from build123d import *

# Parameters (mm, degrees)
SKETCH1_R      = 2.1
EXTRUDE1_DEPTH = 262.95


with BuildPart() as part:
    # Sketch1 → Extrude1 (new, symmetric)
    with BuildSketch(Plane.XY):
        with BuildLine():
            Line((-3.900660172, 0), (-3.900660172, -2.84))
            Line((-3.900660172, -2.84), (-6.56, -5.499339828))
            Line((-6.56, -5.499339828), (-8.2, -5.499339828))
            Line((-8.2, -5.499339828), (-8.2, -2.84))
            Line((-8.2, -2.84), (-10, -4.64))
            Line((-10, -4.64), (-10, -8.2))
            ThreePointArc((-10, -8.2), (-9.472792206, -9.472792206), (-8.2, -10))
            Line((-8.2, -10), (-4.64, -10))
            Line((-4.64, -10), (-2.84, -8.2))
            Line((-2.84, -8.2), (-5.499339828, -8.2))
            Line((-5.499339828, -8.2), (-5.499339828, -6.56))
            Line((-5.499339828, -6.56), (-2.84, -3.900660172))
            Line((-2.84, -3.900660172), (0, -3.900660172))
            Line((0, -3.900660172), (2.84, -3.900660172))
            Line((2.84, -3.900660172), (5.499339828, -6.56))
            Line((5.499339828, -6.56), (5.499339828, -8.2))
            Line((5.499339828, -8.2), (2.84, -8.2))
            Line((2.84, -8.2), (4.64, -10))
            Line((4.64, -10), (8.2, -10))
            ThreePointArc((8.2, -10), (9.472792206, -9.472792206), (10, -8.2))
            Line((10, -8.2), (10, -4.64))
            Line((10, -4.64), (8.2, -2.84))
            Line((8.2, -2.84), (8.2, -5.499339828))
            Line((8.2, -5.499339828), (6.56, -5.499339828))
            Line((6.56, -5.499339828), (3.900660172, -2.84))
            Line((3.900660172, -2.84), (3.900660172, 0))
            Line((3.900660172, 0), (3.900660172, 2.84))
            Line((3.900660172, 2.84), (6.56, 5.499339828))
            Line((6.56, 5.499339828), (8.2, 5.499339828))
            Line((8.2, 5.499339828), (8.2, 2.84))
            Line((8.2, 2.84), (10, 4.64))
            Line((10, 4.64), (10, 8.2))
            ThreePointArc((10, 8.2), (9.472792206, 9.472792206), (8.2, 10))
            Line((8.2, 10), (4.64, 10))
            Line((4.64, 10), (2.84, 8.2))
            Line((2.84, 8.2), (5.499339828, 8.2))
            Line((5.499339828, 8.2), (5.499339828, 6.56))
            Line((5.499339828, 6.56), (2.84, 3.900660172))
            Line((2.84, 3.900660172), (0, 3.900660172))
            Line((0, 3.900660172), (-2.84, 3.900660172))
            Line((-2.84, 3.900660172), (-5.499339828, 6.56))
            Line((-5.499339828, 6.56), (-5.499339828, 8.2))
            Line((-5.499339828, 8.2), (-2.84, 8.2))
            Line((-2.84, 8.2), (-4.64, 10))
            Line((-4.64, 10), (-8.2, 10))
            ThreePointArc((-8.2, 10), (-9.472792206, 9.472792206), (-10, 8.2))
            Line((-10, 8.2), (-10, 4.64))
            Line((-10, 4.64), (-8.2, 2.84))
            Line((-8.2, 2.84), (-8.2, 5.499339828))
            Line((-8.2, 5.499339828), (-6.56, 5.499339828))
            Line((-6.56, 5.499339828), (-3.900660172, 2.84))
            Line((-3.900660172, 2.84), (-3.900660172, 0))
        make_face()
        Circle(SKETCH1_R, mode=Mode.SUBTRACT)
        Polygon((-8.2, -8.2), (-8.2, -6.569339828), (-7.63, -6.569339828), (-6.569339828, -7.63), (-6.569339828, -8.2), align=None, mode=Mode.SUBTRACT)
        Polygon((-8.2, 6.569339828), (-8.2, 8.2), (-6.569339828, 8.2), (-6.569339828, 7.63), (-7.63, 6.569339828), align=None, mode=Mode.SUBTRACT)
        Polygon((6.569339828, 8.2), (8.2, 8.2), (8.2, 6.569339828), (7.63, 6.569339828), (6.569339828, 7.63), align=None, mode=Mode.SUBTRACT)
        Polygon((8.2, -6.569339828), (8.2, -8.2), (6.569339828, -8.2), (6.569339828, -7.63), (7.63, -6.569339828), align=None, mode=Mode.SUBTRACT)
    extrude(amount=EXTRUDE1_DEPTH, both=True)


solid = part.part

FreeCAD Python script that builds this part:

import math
import FreeCAD as App
import Part
import Sketcher
from FreeCAD import Vector
Q = App.Units.Quantity


def add_polygon(sketch, points):
    """Adds a closed chain of lines whose ends are joined by coincident constraints."""
    first, n = sketch.GeometryCount, len(points)
    for a, b in zip(points, points[1:] + points[:1]):
        sketch.addGeometry(Part.LineSegment(App.Vector(*a, 0), App.Vector(*b, 0)), False)
    for i in range(n):
        sketch.addConstraint(Sketcher.Constraint("Coincident", first + i, 2, first + (i + 1) % n, 1))

doc = App.newDocument("Part")
body = doc.addObject("PartDesign::Body", "Body")

sketch1 = body.newObject("Sketcher::SketchObject", "Sketch")
sketch1.AttachmentSupport = (doc.getObject("XY_Plane"), [""])
sketch1.MapMode = "FlatFace"
sketch1.addGeometry(Part.LineSegment(Vector(-3.9, -2.8, 0), Vector(-6.6, -5.5, 0)), False)
sketch1.addGeometry(Part.LineSegment(Vector(-6.6, -5.5, 0), Vector(-8.2, -5.5, 0)), False)
sketch1.addGeometry(Part.LineSegment(Vector(-8.2, -5.5, 0), Vector(-8.2, -2.8, 0)), False)
sketch1.addGeometry(Part.LineSegment(Vector(-8.2, -2.8, 0), Vector(-10, -4.6, 0)), False)
sketch1.addGeometry(Part.LineSegment(Vector(-10, -4.6, 0), Vector(-10, -8.2, 0)), False)
sketch1.addGeometry(Part.ArcOfCircle(Part.Circle(Vector(-8.2, -8.2, 0), Vector(0, 0, 1), 1.8), math.radians(180), math.radians(270)), False)
sketch1.addGeometry(Part.LineSegment(Vector(-8.2, -10, 0), Vector(-4.6, -10, 0)), False)
sketch1.addGeometry(Part.LineSegment(Vector(-4.6, -10, 0), Vector(-2.8, -8.2, 0)), False)
sketch1.addGeometry(Part.LineSegment(Vector(-2.8, -8.2, 0), Vector(-5.5, -8.2, 0)), False)
sketch1.addGeometry(Part.LineSegment(Vector(-5.5, -8.2, 0), Vector(-5.5, -6.6, 0)), False)
sketch1.addGeometry(Part.LineSegment(Vector(-5.5, -6.6, 0), Vector(-2.8, -3.9, 0)), False)
sketch1.addGeometry(Part.LineSegment(Vector(-2.8, -3.9, 0), Vector(2.8, -3.9, 0)), False)
sketch1.addGeometry(Part.LineSegment(Vector(2.8, -3.9, 0), Vector(5.5, -6.6, 0)), False)
sketch1.addGeometry(Part.LineSegment(Vector(5.5, -6.6, 0), Vector(5.5, -8.2, 0)), False)
sketch1.addGeometry(Part.LineSegment(Vector(5.5, -8.2, 0), Vector(2.8, -8.2, 0)), False)
sketch1.addGeometry(Part.LineSegment(Vector(2.8, -8.2, 0), Vector(4.6, -10, 0)), False)
sketch1.addGeometry(Part.LineSegment(Vector(4.6, -10, 0), Vector(8.2, -10, 0)), False)
sketch1.addGeometry(Part.ArcOfCircle(Part.Circle(Vector(8.2, -8.2, 0), Vector(0, 0, 1), 1.8), math.radians(-90), math.radians(0)), False)
sketch1.addGeometry(Part.LineSegment(Vector(10, -8.2, 0), Vector(10, -4.6, 0)), False)
sketch1.addGeometry(Part.LineSegment(Vector(10, -4.6, 0), Vector(8.2, -2.8, 0)), False)
sketch1.addGeometry(Part.LineSegment(Vector(8.2, -2.8, 0), Vector(8.2, -5.5, 0)), False)
sketch1.addGeometry(Part.LineSegment(Vector(8.2, -5.5, 0), Vector(6.6, -5.5, 0)), False)
sketch1.addGeometry(Part.LineSegment(Vector(6.6, -5.5, 0), Vector(3.9, -2.8, 0)), False)
sketch1.addGeometry(Part.LineSegment(Vector(3.9, -2.8, 0), Vector(3.9, 2.8, 0)), False)
sketch1.addGeometry(Part.LineSegment(Vector(3.9, 2.8, 0), Vector(6.6, 5.5, 0)), False)
sketch1.addGeometry(Part.LineSegment(Vector(6.6, 5.5, 0), Vector(8.2, 5.5, 0)), False)
sketch1.addGeometry(Part.LineSegment(Vector(8.2, 5.5, 0), Vector(8.2, 2.8, 0)), False)
sketch1.addGeometry(Part.LineSegment(Vector(8.2, 2.8, 0), Vector(10, 4.6, 0)), False)
sketch1.addGeometry(Part.LineSegment(Vector(10, 4.6, 0), Vector(10, 8.2, 0)), False)
sketch1.addGeometry(Part.ArcOfCircle(Part.Circle(Vector(8.2, 8.2, 0), Vector(0, 0, 1), 1.8), math.radians(0), math.radians(90)), False)
sketch1.addGeometry(Part.LineSegment(Vector(8.2, 10, 0), Vector(4.6, 10, 0)), False)
sketch1.addGeometry(Part.LineSegment(Vector(4.6, 10, 0), Vector(2.8, 8.2, 0)), False)
sketch1.addGeometry(Part.LineSegment(Vector(2.8, 8.2, 0), Vector(5.5, 8.2, 0)), False)
sketch1.addGeometry(Part.LineSegment(Vector(5.5, 8.2, 0), Vector(5.5, 6.6, 0)), False)
sketch1.addGeometry(Part.LineSegment(Vector(5.5, 6.6, 0), Vector(2.8, 3.9, 0)), False)
sketch1.addGeometry(Part.LineSegment(Vector(2.8, 3.9, 0), Vector(-2.8, 3.9, 0)), False)
sketch1.addGeometry(Part.LineSegment(Vector(-2.8, 3.9, 0), Vector(-5.5, 6.6, 0)), False)
sketch1.addGeometry(Part.LineSegment(Vector(-5.5, 6.6, 0), Vector(-5.5, 8.2, 0)), False)
sketch1.addGeometry(Part.LineSegment(Vector(-5.5, 8.2, 0), Vector(-2.8, 8.2, 0)), False)
sketch1.addGeometry(Part.LineSegment(Vector(-2.8, 8.2, 0), Vector(-4.6, 10, 0)), False)
sketch1.addGeometry(Part.LineSegment(Vector(-4.6, 10, 0), Vector(-8.2, 10, 0)), False)
sketch1.addGeometry(Part.ArcOfCircle(Part.Circle(Vector(-8.2, 8.2, 0), Vector(0, 0, 1), 1.8), math.radians(90), math.radians(180)), False)
sketch1.addGeometry(Part.LineSegment(Vector(-10, 8.2, 0), Vector(-10, 4.6, 0)), False)
sketch1.addGeometry(Part.LineSegment(Vector(-10, 4.6, 0), Vector(-8.2, 2.8, 0)), False)
sketch1.addGeometry(Part.LineSegment(Vector(-8.2, 2.8, 0), Vector(-8.2, 5.5, 0)), False)
sketch1.addGeometry(Part.LineSegment(Vector(-8.2, 5.5, 0), Vector(-6.6, 5.5, 0)), False)
sketch1.addGeometry(Part.LineSegment(Vector(-6.6, 5.5, 0), Vector(-3.9, 2.8, 0)), False)
sketch1.addGeometry(Part.LineSegment(Vector(-3.9, 2.8, 0), Vector(-3.9, -2.8, 0)), False)
add_polygon(sketch1, [(-6.6, -8.2), (-8.2, -8.2), (-8.2, -6.6), (-7.6, -6.6), (-6.6, -7.6)])
add_polygon(sketch1, [(7.6, -6.6), (8.2, -6.6), (8.2, -8.2), (6.6, -8.2), (6.6, -7.6)])
add_polygon(sketch1, [(-7.6, 6.6), (-8.2, 6.6), (-8.2, 8.2), (-6.6, 8.2), (-6.6, 7.6)])
sketch1.addGeometry(Part.Circle(Vector(0, 0, 0), Vector(0, 0, 1), 2.1), False)
add_polygon(sketch1, [(6.6, 7.6), (6.6, 8.2), (8.2, 8.2), (8.2, 6.6), (7.6, 6.6)])
sketch1.addConstraint(Sketcher.Constraint("Coincident", 0, 2, 1, 1))
sketch1.addConstraint(Sketcher.Constraint("Coincident", 1, 2, 2, 1))
sketch1.addConstraint(Sketcher.Constraint("Coincident", 2, 2, 3, 1))
sketch1.addConstraint(Sketcher.Constraint("Coincident", 3, 2, 4, 1))
sketch1.addConstraint(Sketcher.Constraint("Tangent", 4, 2, 5, 1))
sketch1.addConstraint(Sketcher.Constraint("Tangent", 5, 2, 6, 1))
sketch1.addConstraint(Sketcher.Constraint("Coincident", 6, 2, 7, 1))
sketch1.addConstraint(Sketcher.Constraint("Coincident", 7, 2, 8, 1))
sketch1.addConstraint(Sketcher.Constraint("Coincident", 8, 2, 9, 1))
sketch1.addConstraint(Sketcher.Constraint("Coincident", 9, 2, 10, 1))
sketch1.addConstraint(Sketcher.Constraint("Coincident", 10, 2, 11, 1))
sketch1.addConstraint(Sketcher.Constraint("Coincident", 11, 2, 12, 1))
sketch1.addConstraint(Sketcher.Constraint("Coincident", 12, 2, 13, 1))
sketch1.addConstraint(Sketcher.Constraint("Coincident", 13, 2, 14, 1))
sketch1.addConstraint(Sketcher.Constraint("Coincident", 14, 2, 15, 1))
sketch1.addConstraint(Sketcher.Constraint("Coincident", 15, 2, 16, 1))
sketch1.addConstraint(Sketcher.Constraint("Tangent", 16, 2, 17, 1))
sketch1.addConstraint(Sketcher.Constraint("Tangent", 17, 2, 18, 1))
sketch1.addConstraint(Sketcher.Constraint("Coincident", 18, 2, 19, 1))
sketch1.addConstraint(Sketcher.Constraint("Coincident", 19, 2, 20, 1))
sketch1.addConstraint(Sketcher.Constraint("Coincident", 20, 2, 21, 1))
sketch1.addConstraint(Sketcher.Constraint("Coincident", 21, 2, 22, 1))
sketch1.addConstraint(Sketcher.Constraint("Coincident", 22, 2, 23, 1))
sketch1.addConstraint(Sketcher.Constraint("Coincident", 23, 2, 24, 1))
sketch1.addConstraint(Sketcher.Constraint("Coincident", 24, 2, 25, 1))
sketch1.addConstraint(Sketcher.Constraint("Coincident", 25, 2, 26, 1))
sketch1.addConstraint(Sketcher.Constraint("Coincident", 26, 2, 27, 1))
sketch1.addConstraint(Sketcher.Constraint("Coincident", 27, 2, 28, 1))
sketch1.addConstraint(Sketcher.Constraint("Tangent", 28, 2, 29, 1))
sketch1.addConstraint(Sketcher.Constraint("Tangent", 29, 2, 30, 1))
sketch1.addConstraint(Sketcher.Constraint("Coincident", 30, 2, 31, 1))
sketch1.addConstraint(Sketcher.Constraint("Coincident", 31, 2, 32, 1))
sketch1.addConstraint(Sketcher.Constraint("Coincident", 32, 2, 33, 1))
sketch1.addConstraint(Sketcher.Constraint("Coincident", 33, 2, 34, 1))
sketch1.addConstraint(Sketcher.Constraint("Coincident", 34, 2, 35, 1))
sketch1.addConstraint(Sketcher.Constraint("Coincident", 35, 2, 36, 1))
sketch1.addConstraint(Sketcher.Constraint("Coincident", 36, 2, 37, 1))
sketch1.addConstraint(Sketcher.Constraint("Coincident", 37, 2, 38, 1))
sketch1.addConstraint(Sketcher.Constraint("Coincident", 38, 2, 39, 1))
sketch1.addConstraint(Sketcher.Constraint("Coincident", 39, 2, 40, 1))
sketch1.addConstraint(Sketcher.Constraint("Tangent", 40, 2, 41, 1))
sketch1.addConstraint(Sketcher.Constraint("Tangent", 41, 2, 42, 1))
sketch1.addConstraint(Sketcher.Constraint("Coincident", 42, 2, 43, 1))
sketch1.addConstraint(Sketcher.Constraint("Coincident", 43, 2, 44, 1))
sketch1.addConstraint(Sketcher.Constraint("Coincident", 44, 2, 45, 1))
sketch1.addConstraint(Sketcher.Constraint("Coincident", 45, 2, 46, 1))
sketch1.addConstraint(Sketcher.Constraint("Coincident", 46, 2, 47, 1))
sketch1.addConstraint(Sketcher.Constraint("Coincident", 47, 2, 0, 1))
sketch1.addConstraint(Sketcher.Constraint("Horizontal", 1))
sketch1.addConstraint(Sketcher.Constraint("Vertical", 2))
sketch1.addConstraint(Sketcher.Constraint("Vertical", 4))
sketch1.addConstraint(Sketcher.Constraint("Horizontal", 6))
sketch1.addConstraint(Sketcher.Constraint("Horizontal", 8))
sketch1.addConstraint(Sketcher.Constraint("Vertical", 9))
sketch1.addConstraint(Sketcher.Constraint("Horizontal", 11))
sketch1.addConstraint(Sketcher.Constraint("Vertical", 13))
sketch1.addConstraint(Sketcher.Constraint("Horizontal", 14))
sketch1.addConstraint(Sketcher.Constraint("Horizontal", 16))
sketch1.addConstraint(Sketcher.Constraint("Vertical", 18))
sketch1.addConstraint(Sketcher.Constraint("Vertical", 20))
sketch1.addConstraint(Sketcher.Constraint("Horizontal", 21))
sketch1.addConstraint(Sketcher.Constraint("Vertical", 23))
sketch1.addConstraint(Sketcher.Constraint("Horizontal", 25))
sketch1.addConstraint(Sketcher.Constraint("Vertical", 26))
sketch1.addConstraint(Sketcher.Constraint("Vertical", 28))
sketch1.addConstraint(Sketcher.Constraint("Horizontal", 30))
sketch1.addConstraint(Sketcher.Constraint("Horizontal", 32))
sketch1.addConstraint(Sketcher.Constraint("Vertical", 33))
sketch1.addConstraint(Sketcher.Constraint("Horizontal", 35))
sketch1.addConstraint(Sketcher.Constraint("Vertical", 37))
sketch1.addConstraint(Sketcher.Constraint("Horizontal", 38))
sketch1.addConstraint(Sketcher.Constraint("Horizontal", 40))
sketch1.addConstraint(Sketcher.Constraint("Vertical", 42))
sketch1.addConstraint(Sketcher.Constraint("Vertical", 44))
sketch1.addConstraint(Sketcher.Constraint("Horizontal", 45))
sketch1.addConstraint(Sketcher.Constraint("Vertical", 47))
sketch1.addConstraint(Sketcher.Constraint("Horizontal", 48))
sketch1.addConstraint(Sketcher.Constraint("Vertical", 49))
sketch1.addConstraint(Sketcher.Constraint("Horizontal", 50))
sketch1.addConstraint(Sketcher.Constraint("Vertical", 52))
sketch1.addConstraint(Sketcher.Constraint("Horizontal", 53))
sketch1.addConstraint(Sketcher.Constraint("Vertical", 54))
sketch1.addConstraint(Sketcher.Constraint("Horizontal", 55))
sketch1.addConstraint(Sketcher.Constraint("Vertical", 56))
sketch1.addConstraint(Sketcher.Constraint("Horizontal", 58))
sketch1.addConstraint(Sketcher.Constraint("Vertical", 59))
sketch1.addConstraint(Sketcher.Constraint("Horizontal", 60))
sketch1.addConstraint(Sketcher.Constraint("Vertical", 61))
sketch1.addConstraint(Sketcher.Constraint("Vertical", 64))
sketch1.addConstraint(Sketcher.Constraint("Horizontal", 65))
sketch1.addConstraint(Sketcher.Constraint("Vertical", 66))
sketch1.addConstraint(Sketcher.Constraint("Horizontal", 67))
sketch1.addConstraint(Sketcher.Constraint("Coincident", 63, 3, -1, 1))
sketch1.addConstraint(Sketcher.Constraint("Coincident", 48, 2, 5, 3))
sketch1.addConstraint(Sketcher.Constraint("Coincident", 54, 2, 17, 3))
sketch1.addConstraint(Sketcher.Constraint("Coincident", 59, 2, 41, 3))
sketch1.addConstraint(Sketcher.Constraint("Coincident", 65, 2, 29, 3))
sketch1.addConstraint(Sketcher.Constraint("Equal", 5, 17))
sketch1.addConstraint(Sketcher.Constraint("Equal", 17, 29))
sketch1.addConstraint(Sketcher.Constraint("Equal", 29, 41))
sketch1.addConstraint(Sketcher.Constraint("Symmetric", 5, 3, 29, 3, -1, 1))
sketch1.addConstraint(Sketcher.Constraint("Symmetric", 17, 3, 41, 3, -1, 1))
sketch1.addConstraint(Sketcher.Constraint("Symmetric", 0, 2, 24, 2, -1, 1))
sketch1.addConstraint(Sketcher.Constraint("Symmetric", 2, 2, 26, 2, -1, 1))
sketch1.addConstraint(Sketcher.Constraint("Symmetric", 7, 2, 31, 2, -1, 1))
sketch1.addConstraint(Sketcher.Constraint("Symmetric", 9, 2, 33, 2, -1, 1))
sketch1.addConstraint(Sketcher.Constraint("Symmetric", 10, 2, 34, 2, -1, 1))
sketch1.addConstraint(Sketcher.Constraint("Symmetric", 12, 2, 36, 2, -1, 1))
sketch1.addConstraint(Sketcher.Constraint("Symmetric", 14, 2, 38, 2, -1, 1))
sketch1.addConstraint(Sketcher.Constraint("Symmetric", 19, 2, 43, 2, -1, 1))
sketch1.addConstraint(Sketcher.Constraint("Symmetric", 21, 2, 45, 2, -1, 1))
sketch1.addConstraint(Sketcher.Constraint("Symmetric", 22, 2, 46, 2, -1, 1))
sketch1.addConstraint(Sketcher.Constraint("Symmetric", 56, 2, 61, 2, -1, 1))
sketch1.addConstraint(Sketcher.Constraint("Symmetric", 57, 2, 62, 2, -1, 1))
sketch1.addConstraint(Sketcher.Constraint("Symmetric", 50, 2, 67, 2, -1, 1))
sketch1.addConstraint(Sketcher.Constraint("Symmetric", 51, 2, 68, 2, -1, 1))
sketch1.addConstraint(Sketcher.Constraint("Symmetric", 5, 3, 17, 3, -2))
sketch1.addConstraint(Sketcher.Constraint("Symmetric", 9, 2, 12, 2, -2))
sketch1.addConstraint(Sketcher.Constraint("Symmetric", 7, 2, 14, 2, -2))
sketch1.addConstraint(Sketcher.Constraint("Symmetric", 2, 2, 19, 2, -2))
sketch1.addConstraint(Sketcher.Constraint("Symmetric", 0, 2, 21, 2, -2))
sketch1.addConstraint(Sketcher.Constraint("Symmetric", 51, 2, 56, 2, -2))
sketch1.addConstraint(Sketcher.Constraint("Symmetric", 50, 2, 57, 2, -2))
sketch1.addConstraint(Sketcher.Constraint("Parallel", 0, 3))
sketch1.addConstraint(Sketcher.Constraint("Parallel", 3, 7))
sketch1.addConstraint(Sketcher.Constraint("Parallel", 7, 10))
sketch1.addConstraint(Sketcher.Constraint("Perpendicular", 10, 12))
sketch1.addConstraint(Sketcher.Constraint("Parallel", 12, 15))
sketch1.addConstraint(Sketcher.Constraint("Parallel", 15, 19))
sketch1.addConstraint(Sketcher.Constraint("Parallel", 19, 22))
sketch1.addConstraint(Sketcher.Constraint("Perpendicular", 22, 24))
sketch1.addConstraint(Sketcher.Constraint("Parallel", 24, 27))
sketch1.addConstraint(Sketcher.Constraint("Parallel", 27, 31))
sketch1.addConstraint(Sketcher.Constraint("Perpendicular", 34, 36))
sketch1.addConstraint(Sketcher.Constraint("Parallel", 36, 39))
sketch1.addConstraint(Sketcher.Constraint("Parallel", 39, 43))
sketch1.addConstraint(Sketcher.Constraint("Parallel", 46, 51))
sketch1.addConstraint(Sketcher.Constraint("Perpendicular", 51, 57))
sketch1.addConstraint(Sketcher.Constraint("Horizontal", 4, 2, 7, 2))
sketch1.addConstraint(Sketcher.Constraint("Horizontal", 19, 2, 22, 2))
sketch1.addConstraint(Sketcher.Constraint("Vertical", 41, 3, 1, 2))
sketch1.addConstraint(Sketcher.Constraint("Vertical", 7, 2, 10, 2))
sketch1.addConstraint(Sketcher.Constraint("Equal", 38, 2))
sketch1.addConstraint(Sketcher.Constraint("Equal", 40, 4))
sketch1.addConstraint(Sketcher.Constraint("Equal", 45, 9))
sketch1.addConstraint(Sketcher.Constraint("Equal", 35, 23))
sketch1.addConstraint(Sketcher.Constraint("Equal", 65, 49))
sketch1.addConstraint(Sketcher.Constraint("Diameter", 63, Q("4.2 mm")))
sketch1.addConstraint(Sketcher.Constraint("Radius", 5, Q("1.8 mm")))
sketch1.addConstraint(Sketcher.Constraint("DistanceX", 3, 2, -1, 1, Q("10 mm")))
sketch1.addConstraint(Sketcher.Constraint("Distance", 51, Q("1.5 mm")))
sketch1.addConstraint(Sketcher.Constraint("DistanceX", 1, 2, 1, 1, Q("1.64 mm")))
sketch1.addConstraint(Sketcher.Constraint("DistanceX", 6, 1, 6, 2, Q("3.56 mm")))
sketch1.addConstraint(Sketcher.Constraint("DistanceX", 50, 1, 50, 2, Q("0.57 mm")))
sketch1.addConstraint(Sketcher.Constraint("DistanceX", 8, 2, 8, 1, Q("2.65934 mm")))
pad1 = body.newObject("PartDesign::Pad", "Pad")
pad1.Profile = sketch1
pad1.Length = 525.9
pad1.Midplane = True

doc.recompute()
